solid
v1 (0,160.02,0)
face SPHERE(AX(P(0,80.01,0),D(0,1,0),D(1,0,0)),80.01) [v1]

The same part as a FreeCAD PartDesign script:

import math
import FreeCAD as App
import Part
import Sketcher
from FreeCAD import Vector
Q = App.Units.Quantity

doc = App.newDocument("Part")
params = doc.addObject("Spreadsheet::Sheet", "Params")
for row, (alias, value) in enumerate([
    ("sketch1_radius", "3.15 in"),
    ("revolution_angle", "360 deg"),
], start=1):
    params.set(f"A{row}", alias)
    params.set(f"B{row}", "=" + value)
    params.setAlias(f"B{row}", alias)

body = doc.addObject("PartDesign::Body", "Body")

# Sketch on XY plane
sketch1 = body.newObject("Sketcher::SketchObject", "Sketch")
sketch1.AttachmentSupport = (doc.getObject("XY_Plane"), [""])
sketch1.MapMode = "FlatFace"
sketch1.addGeometry([
    Part.LineSegment(Vector(0, 160.02, 0), Vector(0, 0, 0)),
    Part.ArcOfCircle(Part.Circle(Vector(0, 80.01, 0), Vector(0, 0, 1), 80.01), math.radians(-90), math.radians(90)),
], False)
sketch1.addConstraint([
    Sketcher.Constraint("Coincident", 0, 1, 1, 2),
    Sketcher.Constraint("Coincident", 1, 1, 0, 2),
    Sketcher.Constraint("Vertical", 0),
    Sketcher.Constraint("Coincident", 1, 1, -1, 1),
    Sketcher.Constraint("PointOnObject", 1, 3, -2),
    Sketcher.Constraint("Radius", 1, Q("3.15 in")),
])
sketch1.setExpression("Constraints[5]", "Params.sketch1_radius")
revolution = body.newObject("PartDesign::Revolution", "Revolution")
revolution.Profile = sketch1
revolution.ReferenceAxis = (sketch1, ["V_Axis"])
revolution.setExpression("Angle", "Params.revolution_angle")

doc.recompute()
